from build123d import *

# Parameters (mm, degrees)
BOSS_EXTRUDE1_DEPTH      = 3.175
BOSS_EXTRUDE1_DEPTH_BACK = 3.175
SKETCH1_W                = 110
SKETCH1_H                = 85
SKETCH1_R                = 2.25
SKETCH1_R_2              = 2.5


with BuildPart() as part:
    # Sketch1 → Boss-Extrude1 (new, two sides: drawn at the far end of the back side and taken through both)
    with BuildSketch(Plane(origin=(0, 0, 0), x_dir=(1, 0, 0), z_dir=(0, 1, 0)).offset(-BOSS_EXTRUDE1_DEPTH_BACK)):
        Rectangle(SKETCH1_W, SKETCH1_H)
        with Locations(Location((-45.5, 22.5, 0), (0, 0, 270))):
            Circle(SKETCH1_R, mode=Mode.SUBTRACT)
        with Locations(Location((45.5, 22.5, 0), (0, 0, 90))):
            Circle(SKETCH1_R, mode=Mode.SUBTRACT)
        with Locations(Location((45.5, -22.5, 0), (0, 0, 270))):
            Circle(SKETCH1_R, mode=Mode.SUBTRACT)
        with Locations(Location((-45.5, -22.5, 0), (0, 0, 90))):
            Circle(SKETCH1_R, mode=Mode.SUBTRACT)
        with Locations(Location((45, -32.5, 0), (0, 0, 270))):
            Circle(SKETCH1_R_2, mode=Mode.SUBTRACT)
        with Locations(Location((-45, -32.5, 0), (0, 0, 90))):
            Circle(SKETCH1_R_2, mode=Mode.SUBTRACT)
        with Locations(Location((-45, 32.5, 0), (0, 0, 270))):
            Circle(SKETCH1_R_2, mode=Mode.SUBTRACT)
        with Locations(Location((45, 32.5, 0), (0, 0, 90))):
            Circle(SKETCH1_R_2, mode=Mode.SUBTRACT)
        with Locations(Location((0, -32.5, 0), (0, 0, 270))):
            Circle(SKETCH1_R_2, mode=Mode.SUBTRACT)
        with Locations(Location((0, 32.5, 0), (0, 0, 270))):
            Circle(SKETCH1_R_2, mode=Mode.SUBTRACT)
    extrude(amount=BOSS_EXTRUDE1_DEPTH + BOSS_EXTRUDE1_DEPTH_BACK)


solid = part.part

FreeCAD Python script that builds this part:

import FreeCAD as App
import Part
import Sketcher
Q = App.Units.Quantity


def add_polygon(sketch, points):
    """Adds a closed chain of lines whose ends are joined by coincident constraints."""
    first, n = sketch.GeometryCount, len(points)
    for a, b in zip(points, points[1:] + points[:1]):
        sketch.addGeometry(Part.LineSegment(App.Vector(*a, 0), App.Vector(*b, 0)), False)
    for i in range(n):
        sketch.addConstraint(Sketcher.Constraint("Coincident", first + i, 2, first + (i + 1) % n, 1))

doc = App.newDocument("Part")
body = doc.addObject("PartDesign::Body", "Body")

sketch1 = body.newObject("Sketcher::SketchObject", "Sketch")
sketch1.AttachmentSupport = (doc.getObject("XZ_Plane"), [""])
sketch1.MapMode = "FlatFace"
add_polygon(sketch1, [(-55, -42.5), (-55, 42.5), (55, 42.5), (55, -42.5)])
sketch1.addGeometry(Part.Circle(App.Vector(-45, 32.5, 0), App.Vector(0, 0, 1), 2.5), False)
sketch1.addGeometry(Part.Circle(App.Vector(-45.5, 22.5, 0), App.Vector(0, 0, 1), 2.2), False)
sketch1.addGeometry(Part.Circle(App.Vector(0, 32.5, 0), App.Vector(0, 0, 1), 2.5), False)
sketch1.addGeometry(Part.Circle(App.Vector(45, 32.5, 0), App.Vector(0, 0, 1), 2.5), False)
sketch1.addGeometry(Part.Circle(App.Vector(45.5, 22.5, 0), App.Vector(0, 0, 1), 2.2), False)
sketch1.addGeometry(Part.Circle(App.Vector(-45.5, -22.5, 0), App.Vector(0, 0, 1), 2.2), False)
sketch1.addGeometry(Part.Circle(App.Vector(-45, -32.5, 0), App.Vector(0, 0, 1), 2.5), False)
sketch1.addGeometry(Part.Circle(App.Vector(0, -32.5, 0), App.Vector(0, 0, 1), 2.5), False)
sketch1.addGeometry(Part.Circle(App.Vector(45.5, -22.5, 0), App.Vector(0, 0, 1), 2.2), False)
sketch1.addGeometry(Part.Circle(App.Vector(45, -32.5, 0), App.Vector(0, 0, 1), 2.5), False)
sketch1.addConstraint([
    Sketcher.Constraint("Vertical", 0),
    Sketcher.Constraint("Horizontal", 1),
    Sketcher.Constraint("Vertical", 2),
    Sketcher.Constraint("Horizontal", 3),
    Sketcher.Constraint("Equal", 4, 6),
    Sketcher.Constraint("Equal", 6, 7),
    Sketcher.Constraint("Equal", 5, 8),
    Sketcher.Constraint("Equal", 8, 9),
    Sketcher.Constraint("Equal", 7, 10),
    Sketcher.Constraint("Equal", 10, 11),
    Sketcher.Constraint("Equal", 9, 12),
    Sketcher.Constraint("Equal", 11, 13),
    Sketcher.Constraint("Symmetric", 8, 3, 9, 3, -1, 1),
    Sketcher.Constraint("Symmetric", 7, 3, 10, 3, -1, 1),
    Sketcher.Constraint("Symmetric", 6, 3, 11, 3, -1, 1),
    Sketcher.Constraint("Symmetric", 5, 3, 12, 3, -1, 1),
    Sketcher.Constraint("Symmetric", 4, 3, 13, 3, -1, 1),
    Sketcher.Constraint("Symmetric", 0, 2, 2, 2, -1, 1),
    Sketcher.Constraint("Symmetric", 4, 3, 7, 3, -2),
    Sketcher.Constraint("Symmetric", 5, 3, 8, 3, -2),
    Sketcher.Constraint("PointOnObject", 6, 3, -2),
    Sketcher.Constraint("Horizontal", 4, 3, 6, 3),
    Sketcher.Constraint("Diameter", 4, Q("5 mm")),
    Sketcher.Constraint("Diameter", 5, Q("4.5 mm")),
    Sketcher.Constraint("DistanceX", 1, 1, 1, 2, Q("110 mm")),
    Sketcher.Constraint("DistanceY", 0, 1, 0, 2, Q("85 mm")),
    Sketcher.Constraint("DistanceX", 4, 3, -1, 1, Q("45 mm")),
    Sketcher.Constraint("DistanceY", 5, 3, 4, 3, Q("10 mm")),
    Sketcher.Constraint("DistanceX", 5, 3, 8, 3, Q("91 mm")),
    Sketcher.Constraint("DistanceY", 9, 3, 5, 3, Q("45 mm")),
])
pad1 = body.newObject("PartDesign::Pad", "Pad")
pad1.Profile = sketch1
pad1.Type = "TwoLengths"
pad1.Length = 3.175
pad1.Length2 = 3.175
pad1.Reversed = True

doc.recompute()
